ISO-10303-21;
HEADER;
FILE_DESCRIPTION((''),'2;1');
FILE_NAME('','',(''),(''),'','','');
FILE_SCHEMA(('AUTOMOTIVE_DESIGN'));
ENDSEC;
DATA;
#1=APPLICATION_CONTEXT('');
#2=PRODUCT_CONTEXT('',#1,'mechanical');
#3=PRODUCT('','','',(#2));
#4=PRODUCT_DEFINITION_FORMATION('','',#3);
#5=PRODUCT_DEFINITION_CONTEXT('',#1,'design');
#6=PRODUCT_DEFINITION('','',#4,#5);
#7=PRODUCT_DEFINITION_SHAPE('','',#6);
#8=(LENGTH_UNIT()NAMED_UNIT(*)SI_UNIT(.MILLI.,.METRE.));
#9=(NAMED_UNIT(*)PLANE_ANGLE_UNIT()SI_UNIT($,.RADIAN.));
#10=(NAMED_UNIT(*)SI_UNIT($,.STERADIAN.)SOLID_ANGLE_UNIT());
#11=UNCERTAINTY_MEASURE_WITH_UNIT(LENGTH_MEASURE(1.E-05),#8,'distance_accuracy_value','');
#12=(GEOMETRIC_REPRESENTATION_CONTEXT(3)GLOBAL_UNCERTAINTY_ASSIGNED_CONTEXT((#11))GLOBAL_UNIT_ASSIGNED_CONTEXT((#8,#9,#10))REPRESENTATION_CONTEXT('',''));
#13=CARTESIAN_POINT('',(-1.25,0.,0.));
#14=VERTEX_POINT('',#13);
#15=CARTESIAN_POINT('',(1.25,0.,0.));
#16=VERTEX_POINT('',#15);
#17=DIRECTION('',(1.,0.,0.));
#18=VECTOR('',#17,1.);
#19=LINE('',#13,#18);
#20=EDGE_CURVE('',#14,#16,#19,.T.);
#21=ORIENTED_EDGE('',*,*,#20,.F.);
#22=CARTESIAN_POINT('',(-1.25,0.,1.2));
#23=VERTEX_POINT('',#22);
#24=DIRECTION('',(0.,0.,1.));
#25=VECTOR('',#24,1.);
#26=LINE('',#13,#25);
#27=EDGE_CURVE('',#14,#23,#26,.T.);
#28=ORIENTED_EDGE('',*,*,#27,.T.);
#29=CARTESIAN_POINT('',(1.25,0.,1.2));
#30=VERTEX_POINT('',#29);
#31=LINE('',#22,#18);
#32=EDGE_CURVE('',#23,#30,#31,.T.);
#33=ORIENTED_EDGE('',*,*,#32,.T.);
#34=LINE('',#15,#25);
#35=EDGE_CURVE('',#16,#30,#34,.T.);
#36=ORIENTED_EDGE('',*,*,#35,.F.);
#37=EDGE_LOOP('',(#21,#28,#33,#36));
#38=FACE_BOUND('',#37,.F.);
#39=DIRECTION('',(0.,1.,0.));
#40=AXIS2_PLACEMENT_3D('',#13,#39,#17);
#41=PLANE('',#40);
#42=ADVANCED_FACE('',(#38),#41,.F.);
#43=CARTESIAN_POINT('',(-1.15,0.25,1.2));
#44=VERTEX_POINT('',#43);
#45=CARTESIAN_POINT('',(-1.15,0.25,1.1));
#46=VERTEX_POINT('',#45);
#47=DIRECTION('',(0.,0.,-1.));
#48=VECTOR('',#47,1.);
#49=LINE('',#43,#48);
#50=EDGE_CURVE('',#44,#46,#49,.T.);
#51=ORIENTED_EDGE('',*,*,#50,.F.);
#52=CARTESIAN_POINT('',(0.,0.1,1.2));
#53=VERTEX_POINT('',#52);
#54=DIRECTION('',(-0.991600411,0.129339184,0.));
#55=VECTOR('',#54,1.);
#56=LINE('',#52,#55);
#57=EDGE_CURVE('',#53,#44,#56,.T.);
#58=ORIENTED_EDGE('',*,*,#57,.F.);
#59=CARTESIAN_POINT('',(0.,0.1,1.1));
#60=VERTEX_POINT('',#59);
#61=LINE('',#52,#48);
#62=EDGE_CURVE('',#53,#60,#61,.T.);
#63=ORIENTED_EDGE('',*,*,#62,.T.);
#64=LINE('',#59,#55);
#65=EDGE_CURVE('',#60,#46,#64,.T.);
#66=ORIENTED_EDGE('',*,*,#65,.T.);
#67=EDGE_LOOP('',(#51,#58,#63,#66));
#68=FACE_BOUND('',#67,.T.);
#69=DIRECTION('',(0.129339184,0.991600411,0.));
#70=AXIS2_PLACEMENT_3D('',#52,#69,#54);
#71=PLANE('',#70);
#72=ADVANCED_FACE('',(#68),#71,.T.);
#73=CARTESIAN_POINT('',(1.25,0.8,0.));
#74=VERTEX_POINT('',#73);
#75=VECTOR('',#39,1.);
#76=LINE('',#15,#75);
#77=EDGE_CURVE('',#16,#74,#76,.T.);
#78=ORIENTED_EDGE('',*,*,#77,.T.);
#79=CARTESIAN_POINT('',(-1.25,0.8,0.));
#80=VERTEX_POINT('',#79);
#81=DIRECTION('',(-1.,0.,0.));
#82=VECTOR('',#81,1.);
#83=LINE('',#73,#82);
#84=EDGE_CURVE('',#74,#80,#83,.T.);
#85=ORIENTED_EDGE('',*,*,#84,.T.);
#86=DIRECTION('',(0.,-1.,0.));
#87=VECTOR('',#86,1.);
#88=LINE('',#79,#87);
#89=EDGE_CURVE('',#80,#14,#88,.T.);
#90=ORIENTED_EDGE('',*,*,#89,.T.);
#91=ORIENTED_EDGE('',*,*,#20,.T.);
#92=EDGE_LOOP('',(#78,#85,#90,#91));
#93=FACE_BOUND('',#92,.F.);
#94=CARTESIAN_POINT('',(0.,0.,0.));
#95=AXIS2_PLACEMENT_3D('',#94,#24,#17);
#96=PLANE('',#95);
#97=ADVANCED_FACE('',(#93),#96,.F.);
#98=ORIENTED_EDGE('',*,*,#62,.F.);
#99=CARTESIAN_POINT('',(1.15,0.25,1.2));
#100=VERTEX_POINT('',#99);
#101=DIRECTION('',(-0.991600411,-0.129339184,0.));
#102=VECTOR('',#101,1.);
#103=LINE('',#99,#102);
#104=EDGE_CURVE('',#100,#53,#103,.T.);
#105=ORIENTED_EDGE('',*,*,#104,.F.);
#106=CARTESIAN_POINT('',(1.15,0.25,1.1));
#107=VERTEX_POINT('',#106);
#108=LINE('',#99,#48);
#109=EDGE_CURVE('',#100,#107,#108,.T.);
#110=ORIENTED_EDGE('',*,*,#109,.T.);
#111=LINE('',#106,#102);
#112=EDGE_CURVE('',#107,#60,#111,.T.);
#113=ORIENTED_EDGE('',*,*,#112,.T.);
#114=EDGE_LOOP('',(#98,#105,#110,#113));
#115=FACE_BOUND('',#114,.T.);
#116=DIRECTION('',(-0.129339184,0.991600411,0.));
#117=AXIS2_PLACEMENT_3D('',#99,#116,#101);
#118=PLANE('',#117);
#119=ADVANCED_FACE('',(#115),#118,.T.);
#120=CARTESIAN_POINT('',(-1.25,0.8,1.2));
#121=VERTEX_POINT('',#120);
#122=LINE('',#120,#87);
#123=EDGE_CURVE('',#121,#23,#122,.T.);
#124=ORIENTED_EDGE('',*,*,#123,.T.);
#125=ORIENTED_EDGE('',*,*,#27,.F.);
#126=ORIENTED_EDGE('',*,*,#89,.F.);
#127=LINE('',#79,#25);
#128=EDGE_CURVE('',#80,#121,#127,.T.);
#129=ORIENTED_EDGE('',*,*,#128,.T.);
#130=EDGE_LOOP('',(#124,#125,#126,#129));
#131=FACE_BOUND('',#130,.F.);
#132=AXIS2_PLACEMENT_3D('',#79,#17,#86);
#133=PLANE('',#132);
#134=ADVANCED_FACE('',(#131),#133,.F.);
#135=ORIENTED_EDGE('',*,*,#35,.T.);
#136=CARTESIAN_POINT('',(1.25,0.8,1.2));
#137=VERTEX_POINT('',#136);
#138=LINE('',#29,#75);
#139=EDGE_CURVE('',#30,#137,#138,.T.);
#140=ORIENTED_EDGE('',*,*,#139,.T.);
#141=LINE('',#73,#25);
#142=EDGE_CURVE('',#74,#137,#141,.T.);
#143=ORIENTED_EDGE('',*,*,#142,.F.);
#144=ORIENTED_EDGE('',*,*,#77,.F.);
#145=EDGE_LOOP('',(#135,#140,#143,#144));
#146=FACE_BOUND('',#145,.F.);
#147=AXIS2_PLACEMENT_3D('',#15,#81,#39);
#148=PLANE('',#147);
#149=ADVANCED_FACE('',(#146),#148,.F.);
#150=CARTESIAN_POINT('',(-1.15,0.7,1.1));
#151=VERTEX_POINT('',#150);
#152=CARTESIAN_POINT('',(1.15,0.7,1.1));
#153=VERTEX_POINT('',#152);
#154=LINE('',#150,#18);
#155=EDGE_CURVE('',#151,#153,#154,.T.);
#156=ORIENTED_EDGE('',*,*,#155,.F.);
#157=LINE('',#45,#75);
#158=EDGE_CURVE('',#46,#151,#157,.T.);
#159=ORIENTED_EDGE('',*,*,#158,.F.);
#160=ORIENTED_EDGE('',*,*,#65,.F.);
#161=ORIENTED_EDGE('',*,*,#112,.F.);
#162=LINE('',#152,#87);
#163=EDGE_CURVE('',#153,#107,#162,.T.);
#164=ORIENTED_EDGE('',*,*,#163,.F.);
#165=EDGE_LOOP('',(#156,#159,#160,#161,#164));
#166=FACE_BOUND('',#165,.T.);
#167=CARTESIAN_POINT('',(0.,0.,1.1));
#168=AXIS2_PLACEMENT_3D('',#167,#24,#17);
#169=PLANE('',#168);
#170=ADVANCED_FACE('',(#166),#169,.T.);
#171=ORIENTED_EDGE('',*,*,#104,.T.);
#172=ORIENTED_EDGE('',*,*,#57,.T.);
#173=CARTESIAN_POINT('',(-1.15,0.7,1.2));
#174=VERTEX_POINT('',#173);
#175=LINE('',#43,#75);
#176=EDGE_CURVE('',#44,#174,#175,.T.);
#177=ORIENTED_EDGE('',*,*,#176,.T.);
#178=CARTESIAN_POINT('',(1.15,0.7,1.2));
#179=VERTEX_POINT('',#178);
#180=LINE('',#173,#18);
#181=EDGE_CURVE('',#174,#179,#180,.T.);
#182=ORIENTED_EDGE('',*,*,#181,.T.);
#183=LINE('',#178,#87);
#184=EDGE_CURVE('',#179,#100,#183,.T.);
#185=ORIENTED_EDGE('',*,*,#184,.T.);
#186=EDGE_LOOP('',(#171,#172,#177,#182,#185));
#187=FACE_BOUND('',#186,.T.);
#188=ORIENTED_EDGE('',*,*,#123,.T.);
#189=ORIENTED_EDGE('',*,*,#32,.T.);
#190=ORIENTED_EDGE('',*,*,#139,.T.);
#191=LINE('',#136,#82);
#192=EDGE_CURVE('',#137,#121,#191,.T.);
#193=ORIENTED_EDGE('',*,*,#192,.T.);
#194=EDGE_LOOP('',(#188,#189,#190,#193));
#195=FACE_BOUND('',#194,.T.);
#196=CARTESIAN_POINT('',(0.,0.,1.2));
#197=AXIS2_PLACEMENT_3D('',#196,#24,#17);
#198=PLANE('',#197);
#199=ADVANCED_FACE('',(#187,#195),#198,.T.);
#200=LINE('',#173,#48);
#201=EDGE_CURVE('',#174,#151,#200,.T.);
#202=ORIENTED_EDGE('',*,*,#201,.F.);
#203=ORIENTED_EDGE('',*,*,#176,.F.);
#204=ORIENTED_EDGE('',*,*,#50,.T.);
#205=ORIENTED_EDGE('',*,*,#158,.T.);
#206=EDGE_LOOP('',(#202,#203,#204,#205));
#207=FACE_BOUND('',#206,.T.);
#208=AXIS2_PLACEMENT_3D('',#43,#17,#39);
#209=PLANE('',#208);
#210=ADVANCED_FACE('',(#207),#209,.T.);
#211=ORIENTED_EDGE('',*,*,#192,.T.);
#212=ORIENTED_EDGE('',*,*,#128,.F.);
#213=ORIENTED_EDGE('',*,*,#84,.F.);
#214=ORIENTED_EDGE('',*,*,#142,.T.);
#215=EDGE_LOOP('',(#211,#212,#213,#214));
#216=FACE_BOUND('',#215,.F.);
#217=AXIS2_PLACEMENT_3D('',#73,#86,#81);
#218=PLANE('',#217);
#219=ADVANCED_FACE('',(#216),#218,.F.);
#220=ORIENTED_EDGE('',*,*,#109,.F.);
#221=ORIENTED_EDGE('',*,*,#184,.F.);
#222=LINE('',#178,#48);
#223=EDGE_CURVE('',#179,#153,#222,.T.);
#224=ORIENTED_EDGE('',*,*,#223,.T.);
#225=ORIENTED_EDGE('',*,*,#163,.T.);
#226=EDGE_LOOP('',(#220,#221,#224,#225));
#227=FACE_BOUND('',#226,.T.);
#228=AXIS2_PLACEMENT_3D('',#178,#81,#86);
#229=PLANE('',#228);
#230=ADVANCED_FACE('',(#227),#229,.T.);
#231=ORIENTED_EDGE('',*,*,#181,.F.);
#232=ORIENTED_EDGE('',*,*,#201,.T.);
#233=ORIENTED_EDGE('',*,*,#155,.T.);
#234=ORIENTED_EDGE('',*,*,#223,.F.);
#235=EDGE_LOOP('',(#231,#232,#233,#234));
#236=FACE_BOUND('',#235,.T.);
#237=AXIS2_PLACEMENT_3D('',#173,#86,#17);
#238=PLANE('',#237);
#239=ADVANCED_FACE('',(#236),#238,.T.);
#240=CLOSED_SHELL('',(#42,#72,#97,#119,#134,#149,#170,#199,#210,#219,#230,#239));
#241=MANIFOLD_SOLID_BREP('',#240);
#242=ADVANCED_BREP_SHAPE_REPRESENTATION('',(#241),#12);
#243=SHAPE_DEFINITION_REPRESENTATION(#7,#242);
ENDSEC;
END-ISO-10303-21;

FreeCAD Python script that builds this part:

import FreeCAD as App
import Part
import Sketcher
Q = App.Units.Quantity


def add_polygon(sketch, points):
    """Adds a closed chain of lines whose ends are joined by coincident constraints."""
    first, n = sketch.GeometryCount, len(points)
    for a, b in zip(points, points[1:] + points[:1]):
        sketch.addGeometry(Part.LineSegment(App.Vector(*a, 0), App.Vector(*b, 0)), False)
    for i in range(n):
        sketch.addConstraint(Sketcher.Constraint("Coincident", first + i, 2, first + (i + 1) % n, 1))

doc = App.newDocument("Part")
body = doc.addObject("PartDesign::Body", "Body")

sketch1 = body.newObject("Sketcher::SketchObject", "Sketch")
sketch1.AttachmentSupport = (doc.getObject("XY_Plane"), [""])
sketch1.MapMode = "FlatFace"
add_polygon(sketch1, [(-1.25, 0.8), (-1.25, 0), (1.25, 0), (1.25, 0.8)])
sketch1.addConstraint(Sketcher.Constraint("Vertical", 0))
sketch1.addConstraint(Sketcher.Constraint("Horizontal", 1))
sketch1.addConstraint(Sketcher.Constraint("Vertical", 2))
sketch1.addConstraint(Sketcher.Constraint("Horizontal", 3))
sketch1.addConstraint(Sketcher.Constraint("Symmetric", 0, 2, 1, 2, -1, 1))
sketch1.addConstraint(Sketcher.Constraint("DistanceX", 1, 1, 1, 2, Q("2.5 mm")))
sketch1.addConstraint(Sketcher.Constraint("DistanceY", 0, 2, 0, 1, Q("0.8 mm")))
pad1 = body.newObject("PartDesign::Pad", "Pad")
pad1.Profile = sketch1
pad1.Length = 1.2

sketch2 = body.newObject("Sketcher::SketchObject", "Sketch001")
sketch2.AttachmentSupport = (doc.getObject("XY_Plane"), [""])
sketch2.MapMode = "FlatFace"
sketch2.AttachmentOffset = App.Placement(App.Vector(0, 0, 1.2), App.Rotation())
add_polygon(sketch2, [(1.15, 0.7), (-1.15, 0.7), (-1.15, 0.25), (0, 0.1), (1.15, 0.25)])
sketch2.addConstraint(Sketcher.Constraint("Horizontal", 0))
sketch2.addConstraint(Sketcher.Constraint("Vertical", 1))
sketch2.addConstraint(Sketcher.Constraint("Vertical", 4))
sketch2.addConstraint(Sketcher.Constraint("Symmetric", 1, 2, 3, 2, -2))
sketch2.addConstraint(Sketcher.Constraint("PointOnObject", 2, 2, -2))
sketch2.addConstraint(Sketcher.Constraint("DistanceY", 1, 2, 1, 1, Q("0.45 mm")))
sketch2.addConstraint(Sketcher.Constraint("DistanceY", -1, 1, 2, 2, Q("0.1 mm")))
sketch2.addConstraint(Sketcher.Constraint("DistanceX", 0, 2, 0, 1, Q("2.3 mm")))
sketch2.addConstraint(Sketcher.Constraint("DistanceY", -1, 1, 0, 2, Q("0.7 mm")))
pocket1 = body.newObject("PartDesign::Pocket", "Pocket")
pocket1.Profile = sketch2
pocket1.Length = 0.1

doc.recompute()
